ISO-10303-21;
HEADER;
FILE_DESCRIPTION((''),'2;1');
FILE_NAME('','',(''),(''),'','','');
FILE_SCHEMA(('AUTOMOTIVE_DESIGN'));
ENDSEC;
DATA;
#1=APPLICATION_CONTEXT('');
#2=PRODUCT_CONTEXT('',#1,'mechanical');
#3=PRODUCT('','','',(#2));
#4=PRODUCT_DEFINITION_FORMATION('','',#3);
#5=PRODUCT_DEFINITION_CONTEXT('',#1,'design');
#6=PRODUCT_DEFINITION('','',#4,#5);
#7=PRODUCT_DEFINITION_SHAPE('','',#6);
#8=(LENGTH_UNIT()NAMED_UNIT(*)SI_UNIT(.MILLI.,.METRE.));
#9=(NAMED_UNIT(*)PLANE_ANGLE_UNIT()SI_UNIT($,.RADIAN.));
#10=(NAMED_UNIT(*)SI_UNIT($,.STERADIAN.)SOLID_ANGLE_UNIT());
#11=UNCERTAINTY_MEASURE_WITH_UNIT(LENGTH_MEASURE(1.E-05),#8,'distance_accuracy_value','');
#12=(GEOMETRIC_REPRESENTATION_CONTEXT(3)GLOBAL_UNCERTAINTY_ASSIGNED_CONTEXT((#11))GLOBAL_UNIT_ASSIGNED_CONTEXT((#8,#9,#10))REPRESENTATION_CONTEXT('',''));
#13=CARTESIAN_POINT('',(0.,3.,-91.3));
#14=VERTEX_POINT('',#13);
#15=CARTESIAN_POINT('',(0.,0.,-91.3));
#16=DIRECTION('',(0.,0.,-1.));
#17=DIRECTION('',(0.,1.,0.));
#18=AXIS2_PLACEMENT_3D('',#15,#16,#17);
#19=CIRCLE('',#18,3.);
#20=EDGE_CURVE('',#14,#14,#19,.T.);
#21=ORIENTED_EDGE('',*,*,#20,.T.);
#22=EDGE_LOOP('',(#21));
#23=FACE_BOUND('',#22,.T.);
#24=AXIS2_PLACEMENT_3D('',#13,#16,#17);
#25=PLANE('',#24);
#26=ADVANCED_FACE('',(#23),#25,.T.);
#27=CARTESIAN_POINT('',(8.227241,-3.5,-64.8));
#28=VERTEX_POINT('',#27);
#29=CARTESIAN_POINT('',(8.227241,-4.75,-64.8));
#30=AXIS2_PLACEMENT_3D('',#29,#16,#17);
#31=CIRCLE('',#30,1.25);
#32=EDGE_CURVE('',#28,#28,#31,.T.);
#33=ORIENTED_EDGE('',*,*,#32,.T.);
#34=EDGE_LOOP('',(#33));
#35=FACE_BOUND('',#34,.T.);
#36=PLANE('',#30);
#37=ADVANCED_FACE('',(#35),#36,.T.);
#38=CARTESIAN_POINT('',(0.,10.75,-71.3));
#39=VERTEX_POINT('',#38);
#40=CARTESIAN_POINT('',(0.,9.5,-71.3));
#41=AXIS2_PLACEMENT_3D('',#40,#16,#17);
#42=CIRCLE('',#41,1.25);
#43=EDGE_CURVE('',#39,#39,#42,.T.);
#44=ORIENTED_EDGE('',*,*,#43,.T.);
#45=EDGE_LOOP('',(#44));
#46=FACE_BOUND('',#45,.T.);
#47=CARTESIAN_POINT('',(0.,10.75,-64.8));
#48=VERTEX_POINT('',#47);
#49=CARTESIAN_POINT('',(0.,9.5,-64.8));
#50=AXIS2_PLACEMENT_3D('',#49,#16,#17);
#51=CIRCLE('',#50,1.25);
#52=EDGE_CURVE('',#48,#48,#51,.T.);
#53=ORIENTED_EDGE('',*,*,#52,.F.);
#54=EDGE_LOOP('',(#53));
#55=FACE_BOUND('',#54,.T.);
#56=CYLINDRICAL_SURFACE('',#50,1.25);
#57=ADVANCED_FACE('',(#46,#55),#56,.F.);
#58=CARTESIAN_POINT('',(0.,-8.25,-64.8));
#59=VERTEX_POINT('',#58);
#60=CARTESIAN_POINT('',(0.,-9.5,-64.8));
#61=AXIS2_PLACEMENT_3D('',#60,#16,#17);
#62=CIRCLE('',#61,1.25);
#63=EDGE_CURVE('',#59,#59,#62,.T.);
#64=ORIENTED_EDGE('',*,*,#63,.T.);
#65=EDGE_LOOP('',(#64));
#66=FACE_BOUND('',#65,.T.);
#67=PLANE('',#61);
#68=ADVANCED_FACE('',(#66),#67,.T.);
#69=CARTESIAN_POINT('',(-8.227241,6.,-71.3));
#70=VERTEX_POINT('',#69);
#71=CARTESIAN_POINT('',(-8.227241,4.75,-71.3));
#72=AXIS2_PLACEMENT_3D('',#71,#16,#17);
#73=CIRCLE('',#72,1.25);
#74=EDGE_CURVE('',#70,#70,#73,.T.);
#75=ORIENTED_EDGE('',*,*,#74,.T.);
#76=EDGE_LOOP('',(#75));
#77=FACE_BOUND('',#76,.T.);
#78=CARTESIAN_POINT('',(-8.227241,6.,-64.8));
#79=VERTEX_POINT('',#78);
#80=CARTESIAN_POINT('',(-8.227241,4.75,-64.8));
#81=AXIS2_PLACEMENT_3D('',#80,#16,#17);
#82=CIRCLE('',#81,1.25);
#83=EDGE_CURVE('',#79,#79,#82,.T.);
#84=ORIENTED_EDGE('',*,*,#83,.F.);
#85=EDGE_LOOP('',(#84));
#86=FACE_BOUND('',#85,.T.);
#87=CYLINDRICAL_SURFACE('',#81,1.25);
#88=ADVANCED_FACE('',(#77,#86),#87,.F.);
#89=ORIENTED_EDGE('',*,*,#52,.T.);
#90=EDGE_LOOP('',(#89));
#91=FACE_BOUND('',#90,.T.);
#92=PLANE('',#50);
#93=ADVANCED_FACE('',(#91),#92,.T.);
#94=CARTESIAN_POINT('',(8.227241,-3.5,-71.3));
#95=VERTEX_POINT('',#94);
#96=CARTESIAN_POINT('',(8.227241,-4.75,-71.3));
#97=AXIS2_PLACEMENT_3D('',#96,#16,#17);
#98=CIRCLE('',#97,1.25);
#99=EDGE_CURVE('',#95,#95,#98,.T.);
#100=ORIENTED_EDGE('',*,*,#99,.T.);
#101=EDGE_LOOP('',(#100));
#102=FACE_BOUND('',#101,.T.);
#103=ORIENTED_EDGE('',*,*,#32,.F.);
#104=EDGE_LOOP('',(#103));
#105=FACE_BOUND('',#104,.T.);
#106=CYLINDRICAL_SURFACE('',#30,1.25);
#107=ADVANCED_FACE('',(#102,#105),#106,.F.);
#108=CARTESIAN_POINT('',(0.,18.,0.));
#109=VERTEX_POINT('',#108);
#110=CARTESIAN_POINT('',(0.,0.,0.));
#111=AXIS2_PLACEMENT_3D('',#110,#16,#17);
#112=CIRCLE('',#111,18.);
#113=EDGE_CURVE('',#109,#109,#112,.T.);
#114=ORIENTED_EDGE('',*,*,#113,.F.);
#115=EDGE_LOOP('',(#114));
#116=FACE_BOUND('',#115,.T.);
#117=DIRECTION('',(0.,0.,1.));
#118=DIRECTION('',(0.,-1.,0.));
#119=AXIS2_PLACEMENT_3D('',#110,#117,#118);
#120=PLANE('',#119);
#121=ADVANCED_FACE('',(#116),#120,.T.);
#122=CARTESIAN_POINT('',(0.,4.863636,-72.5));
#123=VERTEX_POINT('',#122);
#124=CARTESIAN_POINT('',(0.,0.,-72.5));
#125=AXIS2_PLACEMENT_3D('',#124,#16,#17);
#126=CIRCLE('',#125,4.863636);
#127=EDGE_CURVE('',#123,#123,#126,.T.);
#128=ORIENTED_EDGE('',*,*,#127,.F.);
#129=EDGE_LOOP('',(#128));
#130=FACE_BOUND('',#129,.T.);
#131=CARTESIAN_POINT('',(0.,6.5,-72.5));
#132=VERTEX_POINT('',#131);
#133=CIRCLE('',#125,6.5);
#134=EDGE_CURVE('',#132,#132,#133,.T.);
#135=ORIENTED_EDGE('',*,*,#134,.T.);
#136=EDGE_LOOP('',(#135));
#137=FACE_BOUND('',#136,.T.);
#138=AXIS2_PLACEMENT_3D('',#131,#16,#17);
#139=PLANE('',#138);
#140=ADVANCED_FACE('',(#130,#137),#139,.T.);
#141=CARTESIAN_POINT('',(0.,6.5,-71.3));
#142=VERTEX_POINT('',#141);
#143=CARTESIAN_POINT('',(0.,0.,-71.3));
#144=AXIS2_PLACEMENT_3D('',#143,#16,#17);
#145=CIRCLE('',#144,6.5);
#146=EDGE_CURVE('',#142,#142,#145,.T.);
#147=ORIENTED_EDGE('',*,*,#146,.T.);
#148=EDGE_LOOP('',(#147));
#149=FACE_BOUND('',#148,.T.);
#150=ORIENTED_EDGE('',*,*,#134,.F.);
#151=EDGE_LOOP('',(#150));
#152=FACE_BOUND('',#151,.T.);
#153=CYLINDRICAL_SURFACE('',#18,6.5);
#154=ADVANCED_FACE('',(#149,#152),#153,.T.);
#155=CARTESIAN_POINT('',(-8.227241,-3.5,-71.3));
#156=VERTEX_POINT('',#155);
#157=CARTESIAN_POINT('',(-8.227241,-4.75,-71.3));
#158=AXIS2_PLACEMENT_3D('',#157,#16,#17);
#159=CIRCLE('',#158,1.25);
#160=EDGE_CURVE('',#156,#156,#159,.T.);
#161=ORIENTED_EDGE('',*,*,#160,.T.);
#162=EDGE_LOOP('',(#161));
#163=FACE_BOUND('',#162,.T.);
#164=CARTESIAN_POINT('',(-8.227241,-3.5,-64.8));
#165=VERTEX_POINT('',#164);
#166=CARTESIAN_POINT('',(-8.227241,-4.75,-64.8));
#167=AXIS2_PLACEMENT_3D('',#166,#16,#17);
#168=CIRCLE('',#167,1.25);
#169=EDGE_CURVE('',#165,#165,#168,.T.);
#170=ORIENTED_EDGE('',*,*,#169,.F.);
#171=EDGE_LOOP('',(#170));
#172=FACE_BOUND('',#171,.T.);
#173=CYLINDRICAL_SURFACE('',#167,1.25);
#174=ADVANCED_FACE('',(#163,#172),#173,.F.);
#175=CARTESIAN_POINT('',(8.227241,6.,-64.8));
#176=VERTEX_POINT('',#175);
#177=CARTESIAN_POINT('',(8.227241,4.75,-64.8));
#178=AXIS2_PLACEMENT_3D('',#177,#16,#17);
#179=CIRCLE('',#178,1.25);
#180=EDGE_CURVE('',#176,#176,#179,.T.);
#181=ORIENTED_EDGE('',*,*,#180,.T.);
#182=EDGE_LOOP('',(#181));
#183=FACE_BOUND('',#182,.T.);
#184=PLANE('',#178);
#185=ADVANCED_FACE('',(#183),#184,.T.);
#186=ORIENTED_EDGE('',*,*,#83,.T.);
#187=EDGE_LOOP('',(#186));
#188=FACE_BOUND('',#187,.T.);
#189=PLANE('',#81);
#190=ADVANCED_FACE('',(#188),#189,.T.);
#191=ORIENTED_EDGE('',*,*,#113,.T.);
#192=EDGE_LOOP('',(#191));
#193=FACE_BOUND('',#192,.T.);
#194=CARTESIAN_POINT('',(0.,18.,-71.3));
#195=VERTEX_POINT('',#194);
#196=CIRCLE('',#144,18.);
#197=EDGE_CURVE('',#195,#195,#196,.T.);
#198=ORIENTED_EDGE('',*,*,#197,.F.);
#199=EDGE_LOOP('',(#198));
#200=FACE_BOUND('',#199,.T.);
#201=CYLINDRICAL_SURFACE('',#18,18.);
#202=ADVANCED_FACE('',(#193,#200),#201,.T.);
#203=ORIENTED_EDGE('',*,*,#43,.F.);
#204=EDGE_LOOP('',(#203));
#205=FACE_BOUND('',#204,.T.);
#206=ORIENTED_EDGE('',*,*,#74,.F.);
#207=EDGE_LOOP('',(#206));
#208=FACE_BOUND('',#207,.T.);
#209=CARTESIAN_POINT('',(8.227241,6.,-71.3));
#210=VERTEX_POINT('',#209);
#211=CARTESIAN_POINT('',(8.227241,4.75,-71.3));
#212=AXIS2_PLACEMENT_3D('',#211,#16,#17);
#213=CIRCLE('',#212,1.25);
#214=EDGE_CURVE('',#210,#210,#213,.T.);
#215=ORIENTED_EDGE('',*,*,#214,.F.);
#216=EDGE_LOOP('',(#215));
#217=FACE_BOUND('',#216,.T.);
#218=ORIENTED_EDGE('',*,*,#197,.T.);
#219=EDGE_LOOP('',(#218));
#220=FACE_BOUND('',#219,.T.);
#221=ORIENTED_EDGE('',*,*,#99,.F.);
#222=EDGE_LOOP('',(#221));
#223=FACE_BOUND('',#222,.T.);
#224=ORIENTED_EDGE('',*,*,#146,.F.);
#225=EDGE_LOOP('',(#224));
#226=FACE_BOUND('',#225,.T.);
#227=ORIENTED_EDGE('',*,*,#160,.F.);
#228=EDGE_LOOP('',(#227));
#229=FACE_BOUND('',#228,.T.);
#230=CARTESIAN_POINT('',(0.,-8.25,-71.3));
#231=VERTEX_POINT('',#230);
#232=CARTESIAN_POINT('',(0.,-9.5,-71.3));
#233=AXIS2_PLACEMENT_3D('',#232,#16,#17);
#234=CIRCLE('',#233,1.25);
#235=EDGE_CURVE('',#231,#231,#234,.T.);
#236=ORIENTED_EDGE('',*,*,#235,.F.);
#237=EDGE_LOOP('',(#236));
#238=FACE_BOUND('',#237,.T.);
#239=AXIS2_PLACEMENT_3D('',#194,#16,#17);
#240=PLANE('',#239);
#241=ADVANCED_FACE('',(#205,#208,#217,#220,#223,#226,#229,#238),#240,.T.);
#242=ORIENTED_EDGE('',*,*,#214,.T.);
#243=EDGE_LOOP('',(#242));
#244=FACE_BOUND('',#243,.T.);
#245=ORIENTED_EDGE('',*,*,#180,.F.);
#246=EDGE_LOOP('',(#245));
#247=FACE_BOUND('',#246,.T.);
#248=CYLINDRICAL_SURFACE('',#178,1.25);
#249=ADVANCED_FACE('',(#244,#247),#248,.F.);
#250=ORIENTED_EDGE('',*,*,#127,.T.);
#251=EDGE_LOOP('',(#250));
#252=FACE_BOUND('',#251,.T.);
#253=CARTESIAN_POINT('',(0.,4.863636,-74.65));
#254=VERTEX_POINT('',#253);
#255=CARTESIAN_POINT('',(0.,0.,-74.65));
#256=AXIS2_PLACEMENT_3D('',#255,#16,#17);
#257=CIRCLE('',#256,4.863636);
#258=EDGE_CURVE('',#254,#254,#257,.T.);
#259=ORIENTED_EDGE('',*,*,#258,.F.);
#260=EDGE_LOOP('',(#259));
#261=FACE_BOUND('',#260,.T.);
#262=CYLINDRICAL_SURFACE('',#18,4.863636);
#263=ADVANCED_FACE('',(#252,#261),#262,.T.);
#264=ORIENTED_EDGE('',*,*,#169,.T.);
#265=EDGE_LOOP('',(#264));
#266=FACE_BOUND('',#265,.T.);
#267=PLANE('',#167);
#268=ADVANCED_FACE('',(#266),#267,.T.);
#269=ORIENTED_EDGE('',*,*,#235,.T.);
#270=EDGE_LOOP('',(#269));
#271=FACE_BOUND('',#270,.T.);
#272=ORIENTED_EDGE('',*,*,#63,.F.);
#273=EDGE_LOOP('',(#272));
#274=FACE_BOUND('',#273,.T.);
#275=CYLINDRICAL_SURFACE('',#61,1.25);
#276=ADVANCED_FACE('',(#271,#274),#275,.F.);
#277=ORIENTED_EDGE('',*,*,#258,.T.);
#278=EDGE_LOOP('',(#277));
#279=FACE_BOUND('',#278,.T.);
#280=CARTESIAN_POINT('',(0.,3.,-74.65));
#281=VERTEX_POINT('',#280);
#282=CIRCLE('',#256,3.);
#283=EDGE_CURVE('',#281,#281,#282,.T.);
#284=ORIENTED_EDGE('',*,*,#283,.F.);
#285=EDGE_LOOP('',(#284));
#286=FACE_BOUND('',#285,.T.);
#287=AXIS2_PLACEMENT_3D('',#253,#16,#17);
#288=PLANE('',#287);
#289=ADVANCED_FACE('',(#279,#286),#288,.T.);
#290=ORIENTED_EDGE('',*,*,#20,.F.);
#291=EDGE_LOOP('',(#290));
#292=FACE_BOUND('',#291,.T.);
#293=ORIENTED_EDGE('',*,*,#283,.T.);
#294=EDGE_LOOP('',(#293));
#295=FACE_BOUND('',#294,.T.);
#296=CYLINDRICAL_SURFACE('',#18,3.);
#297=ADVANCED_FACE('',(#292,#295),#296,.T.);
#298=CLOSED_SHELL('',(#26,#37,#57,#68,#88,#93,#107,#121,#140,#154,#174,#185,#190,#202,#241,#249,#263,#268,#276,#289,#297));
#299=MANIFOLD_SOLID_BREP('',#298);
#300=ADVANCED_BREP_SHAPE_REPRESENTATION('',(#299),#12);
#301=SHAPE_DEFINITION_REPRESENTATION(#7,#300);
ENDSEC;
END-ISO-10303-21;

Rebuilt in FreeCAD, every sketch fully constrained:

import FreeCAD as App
import Part
import Sketcher

V = App.Vector
Q = App.Units.Quantity

doc = App.newDocument("Part")
body = doc.addObject("PartDesign::Body", "Body")

sketch1 = body.newObject("Sketcher::SketchObject", "Sketch")
sketch1.AttachmentSupport = (doc.getObject("YZ_Plane"), [""])
sketch1.MapMode = "FlatFace"
sketch1.addGeometry([
    Part.LineSegment(V(18, 0, 0), V(0, 0, 0)),
    Part.LineSegment(V(0, 0, 0), V(0, -91.3, 0)),
    Part.LineSegment(V(0, -91.3, 0), V(3, -91.3, 0)),
    Part.LineSegment(V(3, -91.3, 0), V(3, -74.7, 0)),
    Part.LineSegment(V(3, -74.7, 0), V(4.9, -74.7, 0)),
    Part.LineSegment(V(4.9, -74.7, 0), V(4.9, -72.5, 0)),
    Part.LineSegment(V(4.9, -72.5, 0), V(6.5, -72.5, 0)),
    Part.LineSegment(V(6.5, -72.5, 0), V(6.5, -71.3, 0)),
    Part.LineSegment(V(6.5, -71.3, 0), V(18, -71.3, 0)),
    Part.LineSegment(V(18, -71.3, 0), V(18, 0, 0)),
], False)
sketch1.addConstraint([
    Sketcher.Constraint("Coincident", 0, 2, 1, 1),
    Sketcher.Constraint("Coincident", 1, 2, 2, 1),
    Sketcher.Constraint("Coincident", 2, 2, 3, 1),
    Sketcher.Constraint("Coincident", 3, 2, 4, 1),
    Sketcher.Constraint("Coincident", 4, 2, 5, 1),
    Sketcher.Constraint("Coincident", 5, 2, 6, 1),
    Sketcher.Constraint("Coincident", 6, 2, 7, 1),
    Sketcher.Constraint("Coincident", 7, 2, 8, 1),
    Sketcher.Constraint("Coincident", 8, 2, 9, 1),
    Sketcher.Constraint("Coincident", 9, 2, 0, 1),
    Sketcher.Constraint("Horizontal", 0),
    Sketcher.Constraint("Vertical", 1),
    Sketcher.Constraint("Horizontal", 2),
    Sketcher.Constraint("Vertical", 3),
    Sketcher.Constraint("Horizontal", 4),
    Sketcher.Constraint("Vertical", 5),
    Sketcher.Constraint("Horizontal", 6),
    Sketcher.Constraint("Vertical", 7),
    Sketcher.Constraint("Horizontal", 8),
    Sketcher.Constraint("Vertical", 9),
    Sketcher.Constraint("Coincident", 0, 2, -1, 1),
    Sketcher.Constraint("DistanceX", 0, 2, 0, 1, Q("18 mm")),
    Sketcher.Constraint("DistanceX", 2, 1, 2, 2, Q("3 mm")),
    Sketcher.Constraint("DistanceX", 8, 1, 8, 2, Q("11.5 mm")),
    Sketcher.Constraint("DistanceY", 1, 2, 1, 1, Q("91.3 mm")),
    Sketcher.Constraint("DistanceY", 7, 1, 7, 2, Q("1.2 mm")),
    Sketcher.Constraint("DistanceY", 9, 1, 9, 2, Q("71.3 mm")),
    Sketcher.Constraint("DistanceY", 3, 1, 3, 2, Q("16.65 mm")),
    Sketcher.Constraint("DistanceX", 4, 1, 4, 2, Q("1.863636 mm")),
])
revolution = body.newObject("PartDesign::Revolution", "Revolution")
revolution.Profile = sketch1
revolution.ReferenceAxis = (sketch1, ["V_Axis"])
revolution.Angle = 360

sketch2 = body.newObject("Sketcher::SketchObject", "Sketch001")
sketch2.AttachmentSupport = (doc.getObject("XY_Plane"), [""])
sketch2.MapMode = "FlatFace"
sketch2.AttachmentOffset = App.Placement(V(0, 0, -71.3), App.Rotation())
sketch2.addGeometry([
    Part.Circle(V(0, 9.5, 0), V(0, 0, 1), 1.2),
    Part.Circle(V(-8.2, 4.8, 0), V(0, 0, 1), 1.2),
    Part.Circle(V(-8.2, -4.8, 0), V(0, 0, 1), 1.2),
    Part.Circle(V(0, -9.5, 0), V(0, 0, 1), 1.2),
    Part.Circle(V(8.2, -4.8, 0), V(0, 0, 1), 1.2),
    Part.Circle(V(8.2, 4.8, 0), V(0, 0, 1), 1.2),
], False)
sketch2.addConstraint([
    Sketcher.Constraint("Equal", 0, 1),
    Sketcher.Constraint("Equal", 1, 2),
    Sketcher.Constraint("Equal", 2, 3),
    Sketcher.Constraint("Equal", 3, 4),
    Sketcher.Constraint("Equal", 4, 5),
    Sketcher.Constraint("Symmetric", 0, 3, 3, 3, -1, 1),
    Sketcher.Constraint("Symmetric", 1, 3, 4, 3, -1, 1),
    Sketcher.Constraint("Symmetric", 2, 3, 5, 3, -1, 1),
    Sketcher.Constraint("Symmetric", 2, 3, 4, 3, -2),
    Sketcher.Constraint("PointOnObject", 0, 3, -2),
    Sketcher.Constraint("Diameter", 0, Q("2.5 mm")),
    Sketcher.Constraint("DistanceY", 3, 3, 0, 3, Q("19 mm")),
    Sketcher.Constraint("DistanceY", 2, 3, 1, 3, Q("9.5 mm")),
    Sketcher.Constraint("DistanceX", 1, 3, -1, 1, Q("8.227241 mm")),
])
pocket1 = body.newObject("PartDesign::Pocket", "Pocket")
pocket1.Profile = sketch2
pocket1.Length = 6.5
pocket1.Reversed = True

doc.recompute()
